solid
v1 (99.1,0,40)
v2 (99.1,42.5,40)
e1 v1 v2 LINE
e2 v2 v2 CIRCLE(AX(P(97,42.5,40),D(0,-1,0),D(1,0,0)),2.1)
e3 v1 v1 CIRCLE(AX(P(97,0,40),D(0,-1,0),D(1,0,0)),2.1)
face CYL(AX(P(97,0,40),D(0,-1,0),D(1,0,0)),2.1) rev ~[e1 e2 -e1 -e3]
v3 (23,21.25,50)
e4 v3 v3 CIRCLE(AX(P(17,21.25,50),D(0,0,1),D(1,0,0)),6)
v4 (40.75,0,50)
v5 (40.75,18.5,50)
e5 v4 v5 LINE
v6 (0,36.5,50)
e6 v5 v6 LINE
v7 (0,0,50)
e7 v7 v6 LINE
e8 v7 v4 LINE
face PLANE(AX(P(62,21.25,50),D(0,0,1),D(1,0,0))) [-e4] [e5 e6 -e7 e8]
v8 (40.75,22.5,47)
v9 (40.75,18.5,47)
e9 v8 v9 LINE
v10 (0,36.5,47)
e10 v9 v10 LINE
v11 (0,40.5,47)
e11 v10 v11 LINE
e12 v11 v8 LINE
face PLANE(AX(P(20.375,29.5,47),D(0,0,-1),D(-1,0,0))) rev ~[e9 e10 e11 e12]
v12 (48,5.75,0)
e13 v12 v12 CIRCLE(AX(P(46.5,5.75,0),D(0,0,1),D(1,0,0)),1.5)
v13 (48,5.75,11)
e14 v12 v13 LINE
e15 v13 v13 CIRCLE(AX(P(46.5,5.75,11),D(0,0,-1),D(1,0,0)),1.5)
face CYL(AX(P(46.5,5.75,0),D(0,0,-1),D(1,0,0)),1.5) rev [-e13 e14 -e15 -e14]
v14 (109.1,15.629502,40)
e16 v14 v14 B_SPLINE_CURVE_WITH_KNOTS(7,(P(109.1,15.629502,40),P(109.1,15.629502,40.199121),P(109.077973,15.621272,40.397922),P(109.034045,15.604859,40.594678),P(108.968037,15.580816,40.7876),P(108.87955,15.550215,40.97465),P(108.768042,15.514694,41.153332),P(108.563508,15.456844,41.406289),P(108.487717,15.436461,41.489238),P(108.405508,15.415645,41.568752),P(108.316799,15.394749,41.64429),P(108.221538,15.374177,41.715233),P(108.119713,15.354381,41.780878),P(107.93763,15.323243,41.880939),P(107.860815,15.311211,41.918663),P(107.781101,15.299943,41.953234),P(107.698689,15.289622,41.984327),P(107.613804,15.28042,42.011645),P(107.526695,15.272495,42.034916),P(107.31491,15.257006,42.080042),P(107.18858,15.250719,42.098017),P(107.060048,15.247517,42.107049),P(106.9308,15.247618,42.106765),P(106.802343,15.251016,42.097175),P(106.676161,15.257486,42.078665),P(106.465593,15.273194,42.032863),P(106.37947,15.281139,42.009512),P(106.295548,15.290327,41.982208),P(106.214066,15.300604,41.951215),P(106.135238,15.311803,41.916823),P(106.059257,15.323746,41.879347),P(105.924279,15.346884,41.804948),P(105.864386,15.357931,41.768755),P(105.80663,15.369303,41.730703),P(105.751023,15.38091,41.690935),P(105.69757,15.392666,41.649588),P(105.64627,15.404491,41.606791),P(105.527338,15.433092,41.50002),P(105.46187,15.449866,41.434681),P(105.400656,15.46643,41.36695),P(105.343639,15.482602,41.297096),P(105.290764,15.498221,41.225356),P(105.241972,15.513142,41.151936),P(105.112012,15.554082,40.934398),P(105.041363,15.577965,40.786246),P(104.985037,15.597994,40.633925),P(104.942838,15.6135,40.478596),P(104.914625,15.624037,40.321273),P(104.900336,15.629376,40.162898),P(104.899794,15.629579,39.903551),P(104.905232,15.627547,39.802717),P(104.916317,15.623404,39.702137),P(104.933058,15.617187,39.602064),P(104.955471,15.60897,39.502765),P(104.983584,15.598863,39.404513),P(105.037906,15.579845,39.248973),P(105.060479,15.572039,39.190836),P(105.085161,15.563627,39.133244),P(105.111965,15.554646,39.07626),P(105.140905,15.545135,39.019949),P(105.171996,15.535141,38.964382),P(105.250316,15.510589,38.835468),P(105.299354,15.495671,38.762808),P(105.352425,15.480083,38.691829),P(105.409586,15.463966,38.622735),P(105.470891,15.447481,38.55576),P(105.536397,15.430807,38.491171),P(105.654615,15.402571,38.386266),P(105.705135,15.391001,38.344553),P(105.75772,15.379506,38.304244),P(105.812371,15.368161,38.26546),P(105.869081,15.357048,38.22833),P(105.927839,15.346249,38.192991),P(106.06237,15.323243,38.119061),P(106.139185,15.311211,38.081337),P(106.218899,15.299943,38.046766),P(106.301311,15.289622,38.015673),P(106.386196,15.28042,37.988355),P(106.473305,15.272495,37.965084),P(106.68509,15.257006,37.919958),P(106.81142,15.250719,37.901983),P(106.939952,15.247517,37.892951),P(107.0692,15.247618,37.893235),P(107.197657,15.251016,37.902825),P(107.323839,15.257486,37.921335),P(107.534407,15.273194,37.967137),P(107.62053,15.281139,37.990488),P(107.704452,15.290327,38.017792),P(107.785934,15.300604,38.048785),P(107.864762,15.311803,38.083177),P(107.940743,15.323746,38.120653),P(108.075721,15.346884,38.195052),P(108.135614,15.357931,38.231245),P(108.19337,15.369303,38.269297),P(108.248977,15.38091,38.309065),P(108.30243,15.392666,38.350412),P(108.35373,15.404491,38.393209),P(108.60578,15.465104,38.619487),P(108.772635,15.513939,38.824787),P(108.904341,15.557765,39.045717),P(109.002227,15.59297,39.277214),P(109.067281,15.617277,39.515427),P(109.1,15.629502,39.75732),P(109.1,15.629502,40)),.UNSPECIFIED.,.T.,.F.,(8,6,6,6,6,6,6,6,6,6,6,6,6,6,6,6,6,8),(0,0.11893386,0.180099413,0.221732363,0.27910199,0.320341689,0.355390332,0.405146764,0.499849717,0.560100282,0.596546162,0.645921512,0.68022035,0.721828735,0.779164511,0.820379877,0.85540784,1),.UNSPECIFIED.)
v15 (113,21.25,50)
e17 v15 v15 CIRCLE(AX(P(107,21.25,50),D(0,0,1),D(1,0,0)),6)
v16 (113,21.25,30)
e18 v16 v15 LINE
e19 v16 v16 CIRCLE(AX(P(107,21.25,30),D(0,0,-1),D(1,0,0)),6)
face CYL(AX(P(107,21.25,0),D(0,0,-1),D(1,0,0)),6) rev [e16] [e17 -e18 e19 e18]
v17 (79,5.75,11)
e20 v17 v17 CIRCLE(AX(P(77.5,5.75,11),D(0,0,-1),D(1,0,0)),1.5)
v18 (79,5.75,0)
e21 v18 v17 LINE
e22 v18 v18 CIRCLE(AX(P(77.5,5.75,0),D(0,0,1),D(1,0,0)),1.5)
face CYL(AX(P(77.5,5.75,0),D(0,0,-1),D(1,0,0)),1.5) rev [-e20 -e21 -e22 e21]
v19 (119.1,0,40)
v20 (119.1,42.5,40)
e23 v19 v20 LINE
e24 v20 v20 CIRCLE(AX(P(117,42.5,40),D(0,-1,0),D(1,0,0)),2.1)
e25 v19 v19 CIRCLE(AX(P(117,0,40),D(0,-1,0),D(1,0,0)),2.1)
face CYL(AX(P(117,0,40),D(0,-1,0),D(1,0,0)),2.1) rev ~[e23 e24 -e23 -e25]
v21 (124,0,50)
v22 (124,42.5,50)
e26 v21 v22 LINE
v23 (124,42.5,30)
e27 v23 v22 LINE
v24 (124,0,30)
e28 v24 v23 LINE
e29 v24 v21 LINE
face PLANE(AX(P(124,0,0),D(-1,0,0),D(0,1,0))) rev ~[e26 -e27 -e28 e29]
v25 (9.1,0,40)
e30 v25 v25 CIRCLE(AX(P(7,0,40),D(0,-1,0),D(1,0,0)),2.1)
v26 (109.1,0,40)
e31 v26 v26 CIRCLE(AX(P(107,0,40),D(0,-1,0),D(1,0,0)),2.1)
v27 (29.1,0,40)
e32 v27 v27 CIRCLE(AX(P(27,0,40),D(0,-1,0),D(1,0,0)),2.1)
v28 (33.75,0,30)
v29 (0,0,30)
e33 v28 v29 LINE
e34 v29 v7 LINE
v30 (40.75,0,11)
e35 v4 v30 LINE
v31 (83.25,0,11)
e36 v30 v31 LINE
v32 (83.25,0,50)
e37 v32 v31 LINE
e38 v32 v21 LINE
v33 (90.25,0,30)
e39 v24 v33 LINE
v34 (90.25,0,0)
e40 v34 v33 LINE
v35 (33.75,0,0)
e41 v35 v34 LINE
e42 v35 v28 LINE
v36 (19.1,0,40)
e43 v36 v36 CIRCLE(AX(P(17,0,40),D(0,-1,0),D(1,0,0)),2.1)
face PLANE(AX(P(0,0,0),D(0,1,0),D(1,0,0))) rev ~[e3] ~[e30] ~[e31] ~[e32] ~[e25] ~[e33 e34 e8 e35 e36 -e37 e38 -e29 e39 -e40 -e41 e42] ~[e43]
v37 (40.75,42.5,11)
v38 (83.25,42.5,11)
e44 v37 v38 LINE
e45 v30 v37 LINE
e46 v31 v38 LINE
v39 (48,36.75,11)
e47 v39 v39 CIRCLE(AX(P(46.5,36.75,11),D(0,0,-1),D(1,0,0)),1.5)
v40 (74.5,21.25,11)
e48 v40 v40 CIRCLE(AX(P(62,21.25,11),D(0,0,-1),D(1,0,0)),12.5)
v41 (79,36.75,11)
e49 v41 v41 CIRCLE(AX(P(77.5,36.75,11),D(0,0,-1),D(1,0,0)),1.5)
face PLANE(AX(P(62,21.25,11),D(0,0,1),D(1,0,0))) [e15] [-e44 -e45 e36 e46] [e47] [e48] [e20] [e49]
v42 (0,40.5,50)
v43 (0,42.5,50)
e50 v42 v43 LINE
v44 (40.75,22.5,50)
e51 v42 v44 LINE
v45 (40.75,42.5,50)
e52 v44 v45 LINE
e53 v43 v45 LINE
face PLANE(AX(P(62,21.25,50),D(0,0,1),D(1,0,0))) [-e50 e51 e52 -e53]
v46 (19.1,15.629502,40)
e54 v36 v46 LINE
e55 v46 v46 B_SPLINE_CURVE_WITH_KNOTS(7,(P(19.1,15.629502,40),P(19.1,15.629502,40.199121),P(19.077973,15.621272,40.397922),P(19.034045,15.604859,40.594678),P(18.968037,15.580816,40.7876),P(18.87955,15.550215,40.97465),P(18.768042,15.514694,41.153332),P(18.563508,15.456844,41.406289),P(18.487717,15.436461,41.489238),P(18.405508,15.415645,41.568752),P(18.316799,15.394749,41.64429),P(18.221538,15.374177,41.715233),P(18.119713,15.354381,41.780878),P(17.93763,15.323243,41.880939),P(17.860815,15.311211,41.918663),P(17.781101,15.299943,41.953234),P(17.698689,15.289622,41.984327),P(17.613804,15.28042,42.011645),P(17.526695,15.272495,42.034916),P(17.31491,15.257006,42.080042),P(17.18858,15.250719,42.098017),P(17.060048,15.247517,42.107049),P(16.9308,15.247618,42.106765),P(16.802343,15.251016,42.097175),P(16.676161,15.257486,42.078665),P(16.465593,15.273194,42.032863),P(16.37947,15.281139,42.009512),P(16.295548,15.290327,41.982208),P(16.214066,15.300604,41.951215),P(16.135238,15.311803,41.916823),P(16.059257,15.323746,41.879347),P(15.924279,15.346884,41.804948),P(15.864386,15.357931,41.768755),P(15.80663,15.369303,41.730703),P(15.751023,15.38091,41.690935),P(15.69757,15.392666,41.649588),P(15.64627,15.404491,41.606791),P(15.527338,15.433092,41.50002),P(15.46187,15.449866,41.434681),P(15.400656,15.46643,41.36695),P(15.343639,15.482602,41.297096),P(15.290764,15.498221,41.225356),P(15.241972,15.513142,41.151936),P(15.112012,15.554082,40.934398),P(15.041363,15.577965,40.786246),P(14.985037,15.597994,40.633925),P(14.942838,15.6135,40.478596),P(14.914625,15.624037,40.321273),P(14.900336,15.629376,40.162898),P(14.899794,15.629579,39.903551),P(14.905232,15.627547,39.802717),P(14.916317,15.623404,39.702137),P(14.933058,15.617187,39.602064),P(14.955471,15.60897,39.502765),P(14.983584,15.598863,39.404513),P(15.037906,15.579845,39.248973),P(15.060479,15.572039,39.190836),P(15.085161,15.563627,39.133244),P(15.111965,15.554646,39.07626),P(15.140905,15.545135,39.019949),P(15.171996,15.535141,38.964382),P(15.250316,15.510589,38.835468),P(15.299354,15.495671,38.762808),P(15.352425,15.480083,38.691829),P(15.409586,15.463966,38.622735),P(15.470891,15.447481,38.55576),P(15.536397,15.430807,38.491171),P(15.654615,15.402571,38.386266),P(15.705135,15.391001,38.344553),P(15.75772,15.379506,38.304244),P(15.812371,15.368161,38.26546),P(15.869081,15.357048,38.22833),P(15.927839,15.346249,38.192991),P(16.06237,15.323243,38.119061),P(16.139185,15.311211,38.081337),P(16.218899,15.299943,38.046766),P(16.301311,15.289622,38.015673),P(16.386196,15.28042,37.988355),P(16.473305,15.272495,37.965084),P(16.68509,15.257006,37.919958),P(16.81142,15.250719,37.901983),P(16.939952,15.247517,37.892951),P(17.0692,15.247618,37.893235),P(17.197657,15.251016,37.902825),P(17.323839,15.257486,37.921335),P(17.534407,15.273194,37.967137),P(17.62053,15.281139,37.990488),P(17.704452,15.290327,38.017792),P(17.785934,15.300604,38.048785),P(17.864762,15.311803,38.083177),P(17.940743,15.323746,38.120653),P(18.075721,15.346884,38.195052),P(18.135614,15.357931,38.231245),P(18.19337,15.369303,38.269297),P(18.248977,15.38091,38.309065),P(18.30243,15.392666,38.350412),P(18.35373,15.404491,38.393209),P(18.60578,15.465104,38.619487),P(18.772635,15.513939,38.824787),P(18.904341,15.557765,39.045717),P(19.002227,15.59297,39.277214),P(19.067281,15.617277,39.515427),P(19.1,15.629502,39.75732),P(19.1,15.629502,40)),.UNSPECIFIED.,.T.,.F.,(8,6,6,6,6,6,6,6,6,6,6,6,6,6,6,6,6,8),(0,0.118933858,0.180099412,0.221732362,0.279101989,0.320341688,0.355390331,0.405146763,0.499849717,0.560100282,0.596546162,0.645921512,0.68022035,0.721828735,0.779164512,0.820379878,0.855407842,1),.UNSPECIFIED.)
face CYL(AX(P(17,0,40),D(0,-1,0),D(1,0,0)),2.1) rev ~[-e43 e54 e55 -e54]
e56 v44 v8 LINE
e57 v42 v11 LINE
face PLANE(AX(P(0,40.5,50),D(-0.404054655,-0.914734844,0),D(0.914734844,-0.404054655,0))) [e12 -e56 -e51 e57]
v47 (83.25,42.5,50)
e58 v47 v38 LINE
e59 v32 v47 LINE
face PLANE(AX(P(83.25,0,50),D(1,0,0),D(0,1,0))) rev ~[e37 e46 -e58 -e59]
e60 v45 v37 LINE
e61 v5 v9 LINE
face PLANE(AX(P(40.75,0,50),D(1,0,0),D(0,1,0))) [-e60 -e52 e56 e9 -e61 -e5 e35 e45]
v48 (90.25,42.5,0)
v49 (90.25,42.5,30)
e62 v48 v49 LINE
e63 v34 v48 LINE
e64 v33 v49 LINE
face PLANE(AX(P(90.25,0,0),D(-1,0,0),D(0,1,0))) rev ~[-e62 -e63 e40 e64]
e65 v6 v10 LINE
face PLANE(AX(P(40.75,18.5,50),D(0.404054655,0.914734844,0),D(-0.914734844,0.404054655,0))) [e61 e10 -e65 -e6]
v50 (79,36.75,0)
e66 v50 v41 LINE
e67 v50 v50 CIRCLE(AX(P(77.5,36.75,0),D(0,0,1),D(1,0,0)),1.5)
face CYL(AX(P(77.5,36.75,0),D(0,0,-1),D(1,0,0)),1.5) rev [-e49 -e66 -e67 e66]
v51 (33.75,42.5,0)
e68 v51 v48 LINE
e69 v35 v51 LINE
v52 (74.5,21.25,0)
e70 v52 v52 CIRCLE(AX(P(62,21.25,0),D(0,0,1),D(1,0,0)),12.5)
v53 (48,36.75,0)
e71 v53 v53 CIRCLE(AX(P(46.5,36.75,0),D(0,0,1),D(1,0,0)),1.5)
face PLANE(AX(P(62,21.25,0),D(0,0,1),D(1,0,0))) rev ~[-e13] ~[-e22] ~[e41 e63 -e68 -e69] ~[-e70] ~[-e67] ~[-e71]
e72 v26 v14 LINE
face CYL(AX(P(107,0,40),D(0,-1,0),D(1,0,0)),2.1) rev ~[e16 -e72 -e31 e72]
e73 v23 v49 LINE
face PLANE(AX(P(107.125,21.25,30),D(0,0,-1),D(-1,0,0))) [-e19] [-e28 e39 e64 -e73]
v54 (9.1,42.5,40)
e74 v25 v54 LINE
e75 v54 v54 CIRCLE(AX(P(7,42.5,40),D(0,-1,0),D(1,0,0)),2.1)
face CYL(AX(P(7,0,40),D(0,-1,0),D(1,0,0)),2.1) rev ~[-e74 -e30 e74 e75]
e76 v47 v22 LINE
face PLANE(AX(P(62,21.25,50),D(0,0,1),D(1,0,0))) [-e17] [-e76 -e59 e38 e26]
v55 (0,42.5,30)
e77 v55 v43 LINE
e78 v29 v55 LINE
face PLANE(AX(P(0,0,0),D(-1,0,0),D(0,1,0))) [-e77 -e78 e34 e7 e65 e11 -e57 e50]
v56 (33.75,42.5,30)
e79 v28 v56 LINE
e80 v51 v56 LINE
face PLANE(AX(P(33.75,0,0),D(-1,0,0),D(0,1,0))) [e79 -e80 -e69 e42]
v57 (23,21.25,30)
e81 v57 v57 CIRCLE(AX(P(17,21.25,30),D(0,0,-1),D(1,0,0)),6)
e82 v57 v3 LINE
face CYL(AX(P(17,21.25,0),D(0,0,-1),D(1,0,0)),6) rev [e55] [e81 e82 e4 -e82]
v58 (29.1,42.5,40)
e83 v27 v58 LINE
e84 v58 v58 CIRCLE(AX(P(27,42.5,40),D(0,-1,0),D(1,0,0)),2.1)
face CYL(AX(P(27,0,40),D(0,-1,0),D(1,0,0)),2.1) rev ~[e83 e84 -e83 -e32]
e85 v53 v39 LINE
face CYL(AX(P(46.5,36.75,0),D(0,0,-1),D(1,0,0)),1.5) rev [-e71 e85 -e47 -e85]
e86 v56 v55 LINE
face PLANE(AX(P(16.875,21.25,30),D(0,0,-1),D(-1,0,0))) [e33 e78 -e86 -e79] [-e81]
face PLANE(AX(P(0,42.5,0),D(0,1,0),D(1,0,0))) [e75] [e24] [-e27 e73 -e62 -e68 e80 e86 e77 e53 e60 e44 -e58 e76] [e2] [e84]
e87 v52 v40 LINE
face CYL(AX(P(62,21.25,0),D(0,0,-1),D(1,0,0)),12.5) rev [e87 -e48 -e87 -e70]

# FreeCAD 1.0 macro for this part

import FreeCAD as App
import Part
import Sketcher
from FreeCAD import Vector

doc = App.newDocument("Part")
body = doc.addObject("PartDesign::Body", "Body")

# Sketch on XY plane
sketch1 = body.newObject("Sketcher::SketchObject", "Sketch")
sketch1.AttachmentSupport = (doc.getObject("XY_Plane"), [""])
sketch1.MapMode = "FlatFace"
sketch1.addGeometry([
    Part.LineSegment(Vector(0, 42.5, 0), Vector(0, 0, 0)),  # 0
    Part.LineSegment(Vector(0, 0, 0), Vector(124, 0, 0)),  # 1
    Part.LineSegment(Vector(124, 0, 0), Vector(124, 42.5, 0)),  # 2
    Part.LineSegment(Vector(124, 42.5, 0), Vector(0, 42.5, 0)),  # 3
    Part.Circle(Vector(46.5, 5.8, 0), Vector(0, 0, 1), 1.5),  # 4
    Part.Circle(Vector(77.5, 5.8, 0), Vector(0, 0, 1), 1.5),  # 5
    Part.Circle(Vector(17, 21.2, 0), Vector(0, 0, 1), 6),  # 6
    Part.Circle(Vector(46.5, 36.8, 0), Vector(0, 0, 1), 1.5),  # 7
    Part.Circle(Vector(62, 21.2, 0), Vector(0, 0, 1), 12.5),  # 8
    Part.Circle(Vector(107, 21.2, 0), Vector(0, 0, 1), 6),  # 9
    Part.Circle(Vector(77.5, 36.8, 0), Vector(0, 0, 1), 1.5),  # 10
], False)
sketch1.addConstraint([
    Sketcher.Constraint("Coincident", 0, 2, 1, 1),
    Sketcher.Constraint("Coincident", 1, 2, 2, 1),
    Sketcher.Constraint("Coincident", 2, 2, 3, 1),
    Sketcher.Constraint("Coincident", 3, 2, 0, 1),
    Sketcher.Constraint("Vertical", 0),
    Sketcher.Constraint("Horizontal", 1),
    Sketcher.Constraint("Vertical", 2),
    Sketcher.Constraint("Horizontal", 3),
    Sketcher.Constraint("Coincident", 0, 2, -1, 1),
    Sketcher.Constraint("Equal", 4, 5),
    Sketcher.Constraint("Equal", 5, 7),
    Sketcher.Constraint("Equal", 6, 9),
    Sketcher.Constraint("Equal", 7, 10),
    Sketcher.Constraint("Horizontal", 4, 3, 5, 3),
    Sketcher.Constraint("Horizontal", 6, 3, 8, 3),
    Sketcher.Constraint("Horizontal", 8, 3, 9, 3),
    Sketcher.Constraint("Horizontal", 7, 3, 10, 3),
    Sketcher.Constraint("Vertical", 4, 3, 7, 3),
    Sketcher.Constraint("Vertical", 5, 3, 10, 3),
    Sketcher.Constraint("Diameter", 4, 3.0),
    Sketcher.Constraint("Diameter", 6, 12.0),
    Sketcher.Constraint("Diameter", 8, 25.0),
    Sketcher.Constraint("DistanceX", 1, 1, 1, 2, 124.0),
    Sketcher.Constraint("DistanceY", 0, 2, 0, 1, 42.5),
    Sketcher.Constraint("DistanceX", -1, 1, 6, 3, 17.0),
    Sketcher.Constraint("DistanceX", -1, 1, 8, 3, 62.0),
    Sketcher.Constraint("DistanceX", -1, 1, 9, 3, 107.0),
    Sketcher.Constraint("DistanceX", 4, 3, 5, 3, 31.0),
    Sketcher.Constraint("DistanceY", 4, 3, 7, 3, 31.0),
    Sketcher.Constraint("DistanceX", -1, 1, 4, 3, 46.5),
    Sketcher.Constraint("DistanceY", 4, 3, 6, 3, 15.5),
    Sketcher.Constraint("DistanceY", -1, 1, 4, 3, 5.75),
])
pad1 = body.newObject("PartDesign::Pad", "Pad")
pad1.Profile = sketch1
pad1.Length = 50

# Sketch on XY plane
sketch2 = body.newObject("Sketcher::SketchObject", "Sketch001")
sketch2.AttachmentSupport = (doc.getObject("XY_Plane"), [""])
sketch2.MapMode = "FlatFace"
sketch2.AttachmentOffset = App.Placement(Vector(0, 0, 50), App.Rotation())
sketch2.addGeometry([
    Part.LineSegment(Vector(41, 42, 0), Vector(41, 0, 0)),
    Part.LineSegment(Vector(41, 0, 0), Vector(83, 0, 0)),
    Part.LineSegment(Vector(83, 0, 0), Vector(83, 42, 0)),
    Part.LineSegment(Vector(83, 42, 0), Vector(41, 42, 0)),
], False)
sketch2.addConstraint([
    Sketcher.Constraint("Coincident", 0, 2, 1, 1),
    Sketcher.Constraint("Coincident", 1, 2, 2, 1),
    Sketcher.Constraint("Coincident", 2, 2, 3, 1),
    Sketcher.Constraint("Coincident", 3, 2, 0, 1),
    Sketcher.Constraint("Vertical", 0),
    Sketcher.Constraint("Horizontal", 1),
    Sketcher.Constraint("Vertical", 2),
    Sketcher.Constraint("Horizontal", 3),
    Sketcher.Constraint("PointOnObject", 0, 2, -1),
    Sketcher.Constraint("Equal", 3, 0),
    Sketcher.Constraint("DistanceX", 1, 1, 1, 2, 42.5),
    Sketcher.Constraint("DistanceX", -1, 1, 0, 2, 40.75),
])
pocket1 = body.newObject("PartDesign::Pocket", "Pocket")
pocket1.Profile = sketch2
pocket1.Length = 39

# Sketch on XY plane
sketch3 = body.newObject("Sketcher::SketchObject", "Sketch002")
sketch3.AttachmentSupport = (doc.getObject("XY_Plane"), [""])
sketch3.MapMode = "FlatFace"
sketch3.addGeometry([
    Part.LineSegment(Vector(124, 42, 0), Vector(124, 0, 0)),  # 0
    Part.LineSegment(Vector(124, 0, 0), Vector(90, 0, 0)),  # 1
    Part.LineSegment(Vector(90, 0, 0), Vector(90, 42, 0)),  # 2
    Part.LineSegment(Vector(90, 42, 0), Vector(124, 42, 0)),  # 3
    Part.LineSegment(Vector(34, 42, 0), Vector(34, 0, 0)),  # 4
    Part.LineSegment(Vector(34, 0, 0), Vector(0, 0, 0)),  # 5
    Part.LineSegment(Vector(0, 0, 0), Vector(0, 42, 0)),  # 6
    Part.LineSegment(Vector(0, 42, 0), Vector(34, 42, 0)),  # 7
], False)
sketch3.addConstraint([
    Sketcher.Constraint("Coincident", 0, 2, 1, 1),
    Sketcher.Constraint("Coincident", 1, 2, 2, 1),
    Sketcher.Constraint("Coincident", 2, 2, 3, 1),
    Sketcher.Constraint("Coincident", 3, 2, 0, 1),
    Sketcher.Constraint("Coincident", 4, 2, 5, 1),
    Sketcher.Constraint("Coincident", 5, 2, 6, 1),
    Sketcher.Constraint("Coincident", 6, 2, 7, 1),
    Sketcher.Constraint("Coincident", 7, 2, 4, 1),
    Sketcher.Constraint("Vertical", 0),
    Sketcher.Constraint("Horizontal", 1),
    Sketcher.Constraint("Vertical", 2),
    Sketcher.Constraint("Horizontal", 3),
    Sketcher.Constraint("Vertical", 4),
    Sketcher.Constraint("Horizontal", 5),
    Sketcher.Constraint("Vertical", 6),
    Sketcher.Constraint("Horizontal", 7),
    Sketcher.Constraint("Coincident", 5, 2, -1, 1),
    Sketcher.Constraint("PointOnObject", 0, 2, -1),
    Sketcher.Constraint("Horizontal", 3, 2, 6, 2),
    Sketcher.Constraint("Equal", 3, 5),
    Sketcher.Constraint("DistanceY", 0, 2, 0, 1, 42.5),
    Sketcher.Constraint("DistanceX", -1, 1, 0, 2, 124.0),
    Sketcher.Constraint("DistanceX", 1, 2, 1, 1, 33.75),
])
pocket2 = body.newObject("PartDesign::Pocket", "Pocket001")
pocket2.Profile = sketch3
pocket2.Length = 30
pocket2.Reversed = True

# Sketch on XZ plane
sketch4 = body.newObject("Sketcher::SketchObject", "Sketch003")
sketch4.AttachmentSupport = (doc.getObject("XZ_Plane"), [""])
sketch4.MapMode = "FlatFace"
sketch4.addGeometry(Part.Circle(Vector(7, 40, 0), Vector(0, 0, 1), 2.1), False)
sketch4.addConstraint([
    Sketcher.Constraint("Diameter", 0, 4.2),
    Sketcher.Constraint("DistanceX", -1, 1, 0, 3, 7.0),
    Sketcher.Constraint("DistanceY", -1, 1, 0, 3, 40.0),
])
pocket3 = body.newObject("PartDesign::Pocket", "Pocket002")
pocket3.Profile = sketch4
pocket3.Type = "UpToFirst"

# Sketch on XZ plane
sketch5 = body.newObject("Sketcher::SketchObject", "Sketch004")
sketch5.AttachmentSupport = (doc.getObject("XZ_Plane"), [""])
sketch5.MapMode = "FlatFace"
sketch5.addGeometry(Part.Circle(Vector(27, 40, 0), Vector(0, 0, 1), 2.1), False)
sketch5.addConstraint([
    Sketcher.Constraint("Diameter", 0, 4.2),
    Sketcher.Constraint("DistanceX", -1, 1, 0, 3, 27.0),
    Sketcher.Constraint("DistanceY", -1, 1, 0, 3, 40.0),
])
pocket4 = body.newObject("PartDesign::Pocket", "Pocket003")
pocket4.Profile = sketch5
pocket4.Type = "UpToFirst"

# Sketch on XZ plane
sketch6 = body.newObject("Sketcher::SketchObject", "Sketch005")
sketch6.AttachmentSupport = (doc.getObject("XZ_Plane"), [""])
sketch6.MapMode = "FlatFace"
sketch6.addGeometry(Part.Circle(Vector(97, 40, 0), Vector(0, 0, 1), 2.1), False)
sketch6.addConstraint([
    Sketcher.Constraint("Diameter", 0, 4.2),
    Sketcher.Constraint("DistanceX", -1, 1, 0, 3, 97.0),
    Sketcher.Constraint("DistanceY", -1, 1, 0, 3, 40.0),
])
pocket5 = body.newObject("PartDesign::Pocket", "Pocket004")
pocket5.Profile = sketch6
pocket5.Type = "UpToFirst"

# Sketch on XZ plane
sketch7 = body.newObject("Sketcher::SketchObject", "Sketch006")
sketch7.AttachmentSupport = (doc.getObject("XZ_Plane"), [""])
sketch7.MapMode = "FlatFace"
sketch7.addGeometry(Part.Circle(Vector(117, 40, 0), Vector(0, 0, 1), 2.1), False)
sketch7.addConstraint([
    Sketcher.Constraint("Diameter", 0, 4.2),
    Sketcher.Constraint("DistanceX", -1, 1, 0, 3, 117.0),
    Sketcher.Constraint("DistanceY", -1, 1, 0, 3, 40.0),
])
pocket6 = body.newObject("PartDesign::Pocket", "Pocket005")
pocket6.Profile = sketch7
pocket6.Type = "UpToFirst"

# Sketch on XZ plane
sketch8 = body.newObject("Sketcher::SketchObject", "Sketch007")
sketch8.AttachmentSupport = (doc.getObject("XZ_Plane"), [""])
sketch8.MapMode = "FlatFace"
sketch8.addGeometry(Part.Circle(Vector(17, 40, 0), Vector(0, 0, 1), 2.1), False)
sketch8.addConstraint([
    Sketcher.Constraint("Diameter", 0, 4.2),
    Sketcher.Constraint("DistanceX", -1, 1, 0, 3, 17.0),
    Sketcher.Constraint("DistanceY", -1, 1, 0, 3, 40.0),
])
pocket7 = body.newObject("PartDesign::Pocket", "Pocket006")
pocket7.Profile = sketch8
pocket7.Length = 15.629502

# Sketch on XZ plane
sketch9 = body.newObject("Sketcher::SketchObject", "Sketch008")
sketch9.AttachmentSupport = (doc.getObject("XZ_Plane"), [""])
sketch9.MapMode = "FlatFace"
sketch9.addGeometry(Part.Circle(Vector(107, 40, 0), Vector(0, 0, 1), 2.1), False)
sketch9.addConstraint([
    Sketcher.Constraint("Diameter", 0, 4.2),
    Sketcher.Constraint("DistanceX", -1, 1, 0, 3, 107.0),
    Sketcher.Constraint("DistanceY", -1, 1, 0, 3, 40.0),
])
pocket8 = body.newObject("PartDesign::Pocket", "Pocket007")
pocket8.Profile = sketch9
pocket8.Length = 15.629502

# Sketch on XY plane
sketch10 = body.newObject("Sketcher::SketchObject", "Sketch009")
sketch10.AttachmentSupport = (doc.getObject("XY_Plane"), [""])
sketch10.MapMode = "FlatFace"
sketch10.AttachmentOffset = App.Placement(Vector(0, 0, 50), App.Rotation())
sketch10.addGeometry([
    Part.LineSegment(Vector(40.8, 22.5, 0), Vector(0, 40.5, 0)),
    Part.LineSegment(Vector(0, 40.5, 0), Vector(0, 36.5, 0)),
    Part.LineSegment(Vector(0, 36.5, 0), Vector(40.8, 18.5, 0)),
    Part.LineSegment(Vector(40.8, 18.5, 0), Vector(40.8, 22.5, 0)),
], False)
sketch10.addConstraint([
    Sketcher.Constraint("Coincident", 0, 2, 1, 1),
    Sketcher.Constraint("Coincident", 1, 2, 2, 1),
    Sketcher.Constraint("Coincident", 2, 2, 3, 1),
    Sketcher.Constraint("Coincident", 3, 2, 0, 1),
    Sketcher.Constraint("Vertical", 1),
    Sketcher.Constraint("Vertical", 3),
    Sketcher.Constraint("PointOnObject", 0, 2, -2),
    Sketcher.Constraint("Parallel", 0, 2),
    Sketcher.Constraint("DistanceY", 1, 2, 1, 1, 4.0),
    Sketcher.Constraint("DistanceY", 2, 2, 1, 2, 18.0),
    Sketcher.Constraint("DistanceY", -1, 1, 0, 2, 40.5),
    Sketcher.Constraint("DistanceX", -1, 1, 2, 2, 40.75),
])
pocket9 = body.newObject("PartDesign::Pocket", "Pocket008")
pocket9.Profile = sketch10
pocket9.Length = 3

doc.recompute()
